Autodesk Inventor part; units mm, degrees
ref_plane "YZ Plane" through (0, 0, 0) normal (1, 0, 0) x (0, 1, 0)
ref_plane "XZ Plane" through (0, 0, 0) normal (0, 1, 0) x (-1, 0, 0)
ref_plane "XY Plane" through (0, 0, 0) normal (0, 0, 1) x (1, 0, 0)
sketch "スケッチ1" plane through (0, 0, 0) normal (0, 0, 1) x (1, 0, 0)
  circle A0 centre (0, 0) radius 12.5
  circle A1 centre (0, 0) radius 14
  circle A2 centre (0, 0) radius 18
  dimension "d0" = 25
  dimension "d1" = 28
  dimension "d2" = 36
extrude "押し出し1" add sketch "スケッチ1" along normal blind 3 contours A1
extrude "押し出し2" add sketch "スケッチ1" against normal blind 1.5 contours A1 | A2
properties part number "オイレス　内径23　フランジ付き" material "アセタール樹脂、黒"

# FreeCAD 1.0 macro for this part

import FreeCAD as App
import Part
import Sketcher

V = App.Vector

doc = App.newDocument("Part")
params = doc.addObject("Spreadsheet::Sheet", "Params")
for row, (alias, value) in enumerate([
    ("sketch1_diameter", "28 mm"),
    ("sketch1_diameter2", "25 mm"),
    ("pad1_length", "3 mm"),
    ("sketch2_diameter", "36 mm"),
    ("sketch2_diameter2", "25 mm"),
    ("pad2_length", "1.5 mm"),
], start=1):
    params.set(f"A{row}", alias)
    params.set(f"B{row}", "=" + value)
    params.setAlias(f"B{row}", alias)

body = doc.addObject("PartDesign::Body", "Body")

# Sketch on XY plane
sketch1 = body.newObject("Sketcher::SketchObject", "Sketch")
sketch1.AttachmentSupport = (doc.getObject("XY_Plane"), [""])
sketch1.MapMode = "FlatFace"
sketch1.addGeometry(Part.Circle(V(0, 0, 0), V(0, 0, 1), 14), False)
sketch1.addGeometry(Part.Circle(V(0, 0, 0), V(0, 0, 1), 12.5), False)
sketch1.addConstraint(Sketcher.Constraint("Coincident", 0, 3, -1, 1))
sketch1.addConstraint(Sketcher.Constraint("Coincident", 1, 3, -1, 1))
sketch1.addConstraint(Sketcher.Constraint("Diameter", 0, 28.0))
sketch1.addConstraint(Sketcher.Constraint("Diameter", 1, 25.0))
sketch1.setExpression("Constraints[2]", "Params.sketch1_diameter")
sketch1.setExpression("Constraints[3]", "Params.sketch1_diameter2")
pad1 = body.newObject("PartDesign::Pad", "Pad")
pad1.Profile = sketch1
pad1.setExpression("Length", "Params.pad1_length")

# Sketch on XY plane
sketch2 = body.newObject("Sketcher::SketchObject", "Sketch001")
sketch2.AttachmentSupport = (doc.getObject("XY_Plane"), [""])
sketch2.MapMode = "FlatFace"
sketch2.addGeometry(Part.Circle(V(0, 0, 0), V(0, 0, 1), 18), False)
sketch2.addGeometry(Part.Circle(V(0, 0, 0), V(0, 0, 1), 12.5), False)
sketch2.addConstraint(Sketcher.Constraint("Coincident", 0, 3, -1, 1))
sketch2.addConstraint(Sketcher.Constraint("Coincident", 1, 3, -1, 1))
sketch2.addConstraint(Sketcher.Constraint("Diameter", 0, 36.0))
sketch2.addConstraint(Sketcher.Constraint("Diameter", 1, 25.0))
sketch2.setExpression("Constraints[2]", "Params.sketch2_diameter")
sketch2.setExpression("Constraints[3]", "Params.sketch2_diameter2")
pad2 = body.newObject("PartDesign::Pad", "Pad001")
pad2.Profile = sketch2
pad2.setExpression("Length", "Params.pad2_length")
pad2.Reversed = True

doc.recompute()
